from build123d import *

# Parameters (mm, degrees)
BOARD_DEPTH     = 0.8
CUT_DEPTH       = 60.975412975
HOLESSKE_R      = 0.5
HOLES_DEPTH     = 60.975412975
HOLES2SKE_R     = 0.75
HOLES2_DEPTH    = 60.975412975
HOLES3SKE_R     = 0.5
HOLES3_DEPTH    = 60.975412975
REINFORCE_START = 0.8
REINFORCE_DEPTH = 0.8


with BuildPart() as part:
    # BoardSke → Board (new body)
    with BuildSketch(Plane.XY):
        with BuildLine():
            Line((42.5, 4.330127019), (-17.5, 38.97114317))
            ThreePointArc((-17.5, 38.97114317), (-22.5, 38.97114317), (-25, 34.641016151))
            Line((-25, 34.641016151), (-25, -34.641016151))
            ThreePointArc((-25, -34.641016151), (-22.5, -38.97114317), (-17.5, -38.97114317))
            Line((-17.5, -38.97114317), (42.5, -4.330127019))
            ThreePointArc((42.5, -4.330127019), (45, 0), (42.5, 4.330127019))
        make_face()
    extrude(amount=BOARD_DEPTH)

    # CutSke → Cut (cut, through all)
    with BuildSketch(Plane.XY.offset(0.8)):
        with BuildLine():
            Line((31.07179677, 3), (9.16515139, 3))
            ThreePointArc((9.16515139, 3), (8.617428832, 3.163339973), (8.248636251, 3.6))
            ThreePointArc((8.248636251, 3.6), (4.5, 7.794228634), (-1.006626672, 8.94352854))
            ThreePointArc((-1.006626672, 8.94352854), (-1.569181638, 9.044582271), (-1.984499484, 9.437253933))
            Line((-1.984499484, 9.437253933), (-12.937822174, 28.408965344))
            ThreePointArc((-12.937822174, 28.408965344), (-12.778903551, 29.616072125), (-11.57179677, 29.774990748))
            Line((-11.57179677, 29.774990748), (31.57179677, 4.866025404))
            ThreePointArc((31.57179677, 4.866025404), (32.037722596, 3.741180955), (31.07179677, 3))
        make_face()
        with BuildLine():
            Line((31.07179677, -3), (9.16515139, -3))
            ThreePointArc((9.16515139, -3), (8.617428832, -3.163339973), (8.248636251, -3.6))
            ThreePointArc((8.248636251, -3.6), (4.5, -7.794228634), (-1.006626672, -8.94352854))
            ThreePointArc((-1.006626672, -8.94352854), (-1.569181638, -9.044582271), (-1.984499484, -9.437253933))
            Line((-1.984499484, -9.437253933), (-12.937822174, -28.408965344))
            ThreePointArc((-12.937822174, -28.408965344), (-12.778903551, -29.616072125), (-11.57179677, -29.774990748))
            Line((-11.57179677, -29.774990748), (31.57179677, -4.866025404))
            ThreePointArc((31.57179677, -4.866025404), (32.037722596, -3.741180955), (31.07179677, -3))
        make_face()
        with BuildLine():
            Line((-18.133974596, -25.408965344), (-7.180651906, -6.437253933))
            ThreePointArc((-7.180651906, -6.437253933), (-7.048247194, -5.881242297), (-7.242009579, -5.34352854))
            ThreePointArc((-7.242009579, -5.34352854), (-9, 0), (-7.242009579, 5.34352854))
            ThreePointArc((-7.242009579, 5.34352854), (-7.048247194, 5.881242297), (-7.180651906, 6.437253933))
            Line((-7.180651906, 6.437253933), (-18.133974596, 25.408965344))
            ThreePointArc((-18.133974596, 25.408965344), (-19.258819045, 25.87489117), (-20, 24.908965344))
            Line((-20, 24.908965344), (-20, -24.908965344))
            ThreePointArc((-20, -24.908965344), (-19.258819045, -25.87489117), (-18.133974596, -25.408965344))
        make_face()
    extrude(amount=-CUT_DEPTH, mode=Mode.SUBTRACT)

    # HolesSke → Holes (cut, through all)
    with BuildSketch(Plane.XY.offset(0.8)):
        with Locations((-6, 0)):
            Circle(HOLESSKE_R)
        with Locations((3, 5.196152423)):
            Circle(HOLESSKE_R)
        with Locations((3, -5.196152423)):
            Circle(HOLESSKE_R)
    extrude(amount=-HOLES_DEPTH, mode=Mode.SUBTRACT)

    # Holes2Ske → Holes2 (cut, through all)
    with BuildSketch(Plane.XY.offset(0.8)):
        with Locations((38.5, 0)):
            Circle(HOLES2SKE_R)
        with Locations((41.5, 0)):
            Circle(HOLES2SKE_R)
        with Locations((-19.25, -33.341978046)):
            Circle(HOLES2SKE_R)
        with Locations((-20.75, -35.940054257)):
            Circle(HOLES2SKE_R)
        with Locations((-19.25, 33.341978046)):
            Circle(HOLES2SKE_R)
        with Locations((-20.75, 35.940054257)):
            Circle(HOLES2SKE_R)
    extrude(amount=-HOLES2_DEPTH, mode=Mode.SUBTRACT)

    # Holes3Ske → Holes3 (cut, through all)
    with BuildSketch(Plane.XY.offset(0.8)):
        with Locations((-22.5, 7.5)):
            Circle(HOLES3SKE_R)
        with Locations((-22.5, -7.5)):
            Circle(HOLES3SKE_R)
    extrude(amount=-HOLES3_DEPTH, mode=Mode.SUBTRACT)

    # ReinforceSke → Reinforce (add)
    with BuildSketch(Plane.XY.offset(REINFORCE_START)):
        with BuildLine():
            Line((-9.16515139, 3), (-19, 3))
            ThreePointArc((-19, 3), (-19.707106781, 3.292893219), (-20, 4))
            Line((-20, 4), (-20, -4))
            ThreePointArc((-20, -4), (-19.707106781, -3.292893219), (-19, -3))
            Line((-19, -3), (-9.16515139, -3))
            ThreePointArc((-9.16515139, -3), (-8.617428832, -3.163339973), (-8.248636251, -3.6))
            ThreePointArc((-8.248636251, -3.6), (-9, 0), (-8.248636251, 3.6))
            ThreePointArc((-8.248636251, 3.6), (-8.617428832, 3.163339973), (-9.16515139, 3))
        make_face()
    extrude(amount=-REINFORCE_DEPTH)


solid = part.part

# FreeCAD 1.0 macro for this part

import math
import FreeCAD as App
import Part
import Sketcher

V = App.Vector
Q = App.Units.Quantity

doc = App.newDocument("Part")
body = doc.addObject("PartDesign::Body", "Body")

sketch1 = doc.addObject("Sketcher::SketchObject", "Sketch")
body.addObject(sketch1)
sketch1.AttachmentSupport = (doc.XY_Plane, [""])
sketch1.MapMode = "FlatFace"
sketch1.addGeometry([
    Part.LineSegment(V(42, 4, 0), V(-18, 39, 0)),
    Part.ArcOfCircle(Part.Circle(V(-20, 35, 0), V(0, 0, 1), 5), math.radians(60), math.radians(180)),
    Part.LineSegment(V(-25, 35, 0), V(-25, -35, 0)),
    Part.ArcOfCircle(Part.Circle(V(-20, -35, 0), V(0, 0, 1), 5), math.radians(180), math.radians(300)),
    Part.LineSegment(V(-18, -39, 0), V(42, -4, 0)),
    Part.ArcOfCircle(Part.Circle(V(40, 0, 0), V(0, 0, 1), 5), math.radians(-60), math.radians(60)),
], False)
sketch1.addConstraint([
    Sketcher.Constraint("Tangent", 0, 2, 1, 1),
    Sketcher.Constraint("Tangent", 1, 2, 2, 1),
    Sketcher.Constraint("Tangent", 2, 2, 3, 1),
    Sketcher.Constraint("Tangent", 3, 2, 4, 1),
    Sketcher.Constraint("Tangent", 4, 2, 5, 1),
    Sketcher.Constraint("Tangent", 5, 2, 0, 1),
    Sketcher.Constraint("Vertical", 2),
    Sketcher.Constraint("Equal", 1, 3),
    Sketcher.Constraint("Equal", 3, 5),
    Sketcher.Constraint("Symmetric", 0, 2, 3, 2, -1),
    Sketcher.Constraint("Radius", 1, Q("5 mm")),
    Sketcher.Constraint("Angle", 0, Q("150 deg")),
    Sketcher.Constraint("DistanceX", 1, 3, -1, 1, Q("20 mm")),
    Sketcher.Constraint("DistanceX", -1, 1, 5, 3, Q("40 mm")),
])
pad1 = doc.addObject("PartDesign::Pad", "Pad")
body.addObject(pad1)
pad1.Profile = sketch1
pad1.Length = 0.8

sketch2 = doc.addObject("Sketcher::SketchObject", "Sketch001")
body.addObject(sketch2)
sketch2.AttachmentSupport = (doc.XY_Plane, [""])
sketch2.MapMode = "FlatFace"
sketch2.AttachmentOffset = App.Placement(V(0, 0, 0.8), App.Rotation())
sketch2.addGeometry([
    Part.LineSegment(V(9.2, 3, 0), V(31.1, 3, 0)),
    Part.ArcOfCircle(Part.Circle(V(31.1, 4, 0), V(0, 0, 1), 1), math.radians(-90), math.radians(60)),
    Part.LineSegment(V(31.6, 4.9, 0), V(-11.6, 29.8, 0)),
    Part.ArcOfCircle(Part.Circle(V(-12.1, 28.9, 0), V(0, 0, 1), 1), math.radians(60), math.radians(210)),
    Part.LineSegment(V(-12.9, 28.4, 0), V(-2, 9.4, 0)),
    Part.ArcOfCircle(Part.Circle(V(-1.1, 9.9, 0), V(0, 0, 1), 1), math.radians(-150), math.radians(-84)),
    Part.ArcOfCircle(Part.Circle(V(0, 0, 0), V(0, 0, 1), 9), math.radians(24), math.radians(96)),
    Part.ArcOfCircle(Part.Circle(V(9.2, 4, 0), V(0, 0, 1), 1), math.radians(-156), math.radians(-90)),
    Part.LineSegment(V(31.1, -3, 0), V(9.2, -3, 0)),
    Part.ArcOfCircle(Part.Circle(V(9.2, -4, 0), V(0, 0, 1), 1), math.radians(90), math.radians(156)),
    Part.ArcOfCircle(Part.Circle(V(0, 0, 0), V(0, 0, 1), 9), math.radians(-96), math.radians(-24)),
    Part.ArcOfCircle(Part.Circle(V(-1.1, -9.9, 0), V(0, 0, 1), 1), math.radians(84), math.radians(150)),
    Part.LineSegment(V(-2, -9.4, 0), V(-12.9, -28.4, 0)),
    Part.ArcOfCircle(Part.Circle(V(-12.1, -28.9, 0), V(0, 0, 1), 1), math.radians(150), math.radians(300)),
    Part.LineSegment(V(-11.6, -29.8, 0), V(31.6, -4.9, 0)),
    Part.ArcOfCircle(Part.Circle(V(31.1, -4, 0), V(0, 0, 1), 1), math.radians(-60), math.radians(90)),
    Part.LineSegment(V(-18.1, -25.4, 0), V(-7.2, -6.4, 0)),
    Part.ArcOfCircle(Part.Circle(V(-8, -5.9, 0), V(0, 0, 1), 1), math.radians(-30), math.radians(36)),
    Part.ArcOfCircle(Part.Circle(V(0, 0, 0), V(0, 0, 1), 9), math.radians(144), math.radians(216)),
    Part.ArcOfCircle(Part.Circle(V(-8, 5.9, 0), V(0, 0, 1), 1), math.radians(-36), math.radians(30)),
    Part.LineSegment(V(-7.2, 6.4, 0), V(-18.1, 25.4, 0)),
    Part.ArcOfCircle(Part.Circle(V(-19, 24.9, 0), V(0, 0, 1), 1), math.radians(30), math.radians(180)),
    Part.LineSegment(V(-20, 24.9, 0), V(-20, -24.9, 0)),
    Part.ArcOfCircle(Part.Circle(V(-19, -24.9, 0), V(0, 0, 1), 1), math.radians(180), math.radians(330)),
], False)
sketch2.addConstraint([
    Sketcher.Constraint("Tangent", 0, 2, 1, 1),
    Sketcher.Constraint("Tangent", 1, 2, 2, 1),
    Sketcher.Constraint("Tangent", 2, 2, 3, 1),
    Sketcher.Constraint("Tangent", 3, 2, 4, 1),
    Sketcher.Constraint("Tangent", 4, 2, 5, 1),
    Sketcher.Constraint("Tangent", 5, 2, 6, 2),
    Sketcher.Constraint("Tangent", 6, 1, 7, 1),
    Sketcher.Constraint("Tangent", 7, 2, 0, 1),
    Sketcher.Constraint("Tangent", 8, 2, 9, 1),
    Sketcher.Constraint("Tangent", 9, 2, 10, 2),
    Sketcher.Constraint("Tangent", 10, 1, 11, 1),
    Sketcher.Constraint("Tangent", 11, 2, 12, 1),
    Sketcher.Constraint("Tangent", 12, 2, 13, 1),
    Sketcher.Constraint("Tangent", 13, 2, 14, 1),
    Sketcher.Constraint("Tangent", 14, 2, 15, 1),
    Sketcher.Constraint("Tangent", 15, 2, 8, 1),
    Sketcher.Constraint("Tangent", 16, 2, 17, 1),
    Sketcher.Constraint("Tangent", 17, 2, 18, 2),
    Sketcher.Constraint("Tangent", 18, 1, 19, 1),
    Sketcher.Constraint("Tangent", 19, 2, 20, 1),
    Sketcher.Constraint("Tangent", 20, 2, 21, 1),
    Sketcher.Constraint("Tangent", 21, 2, 22, 1),
    Sketcher.Constraint("Tangent", 22, 2, 23, 1),
    Sketcher.Constraint("Tangent", 23, 2, 16, 1),
    Sketcher.Constraint("Horizontal", 0),
    Sketcher.Constraint("Horizontal", 8),
    Sketcher.Constraint("Vertical", 22),
    Sketcher.Constraint("Coincident", 6, 3, -1, 1),
    Sketcher.Constraint("Coincident", 10, 3, -1, 1),
    Sketcher.Constraint("Coincident", 18, 3, -1, 1),
    Sketcher.Constraint("Equal", 1, 3),
    Sketcher.Constraint("Equal", 3, 5),
    Sketcher.Constraint("Equal", 5, 7),
    Sketcher.Constraint("Equal", 7, 9),
    Sketcher.Constraint("Equal", 6, 10),
    Sketcher.Constraint("Equal", 9, 11),
    Sketcher.Constraint("Equal", 11, 13),
    Sketcher.Constraint("Equal", 13, 15),
    Sketcher.Constraint("Equal", 15, 17),
    Sketcher.Constraint("Equal", 10, 18),
    Sketcher.Constraint("Equal", 17, 19),
    Sketcher.Constraint("Equal", 19, 21),
    Sketcher.Constraint("Equal", 21, 23),
    Sketcher.Constraint("Symmetric", 3, 3, 13, 3, -1),
    Sketcher.Constraint("Symmetric", 1, 3, 15, 3, -1),
    Sketcher.Constraint("Symmetric", 16, 2, 19, 2, -1),
    Sketcher.Constraint("Perpendicular", 2, 12),
    Sketcher.Constraint("Perpendicular", 4, 14),
    Sketcher.Constraint("Parallel", 12, 16),
    Sketcher.Constraint("Equal", 12, 16),
    Sketcher.Constraint("Radius", 1, Q("1 mm")),
    Sketcher.Constraint("Radius", 6, Q("9 mm")),
    Sketcher.Constraint("Angle", 2, Q("150 deg")),
    Sketcher.Constraint("DistanceY", -1, 1, 1, 3, Q("4 mm")),
    Sketcher.Constraint("DistanceX", 21, 3, -1, 1, Q("19 mm")),
    Sketcher.Constraint("DistanceY", 11, 3, 17, 3, Q("4 mm")),
    Sketcher.Constraint("DistanceY", 22, 2, 22, 1, Q("49.817931 mm")),
])
pocket1 = doc.addObject("PartDesign::Pocket", "Pocket")
body.addObject(pocket1)
pocket1.Profile = sketch2
pocket1.Type = "ThroughAll"

sketch3 = doc.addObject("Sketcher::SketchObject", "Sketch002")
body.addObject(sketch3)
sketch3.AttachmentSupport = (doc.XY_Plane, [""])
sketch3.MapMode = "FlatFace"
sketch3.AttachmentOffset = App.Placement(V(0, 0, 0.8), App.Rotation())
sketch3.addGeometry([
    Part.Circle(V(-6, 0, 0), V(0, 0, 1), 0.5),
    Part.Circle(V(3, 5.2, 0), V(0, 0, 1), 0.5),
    Part.Circle(V(3, -5.2, 0), V(0, 0, 1), 0.5),
], False)
sketch3.addConstraint([
    Sketcher.Constraint("Equal", 0, 1),
    Sketcher.Constraint("Equal", 1, 2),
    Sketcher.Constraint("Symmetric", 1, 3, 2, 3, -1),
    Sketcher.Constraint("PointOnObject", 0, 3, -1),
    Sketcher.Constraint("Diameter", 0, Q("1 mm")),
    Sketcher.Constraint("DistanceX", 0, 3, -1, 1, Q("6 mm")),
    Sketcher.Constraint("DistanceX", -1, 1, 1, 3, Q("3 mm")),
    Sketcher.Constraint("DistanceY", -1, 1, 1, 3, Q("5.196152 mm")),
])
pocket2 = doc.addObject("PartDesign::Pocket", "Pocket001")
body.addObject(pocket2)
pocket2.Profile = sketch3
pocket2.Type = "ThroughAll"

sketch4 = doc.addObject("Sketcher::SketchObject", "Sketch003")
body.addObject(sketch4)
sketch4.AttachmentSupport = (doc.XY_Plane, [""])
sketch4.MapMode = "FlatFace"
sketch4.AttachmentOffset = App.Placement(V(0, 0, 0.8), App.Rotation())
sketch4.addGeometry([
    Part.Circle(V(38.5, 0, 0), V(0, 0, 1), 0.8),
    Part.Circle(V(41.5, 0, 0), V(0, 0, 1), 0.8),
    Part.Circle(V(-19.2, -33.3, 0), V(0, 0, 1), 0.8),
    Part.Circle(V(-20.8, -35.9, 0), V(0, 0, 1), 0.8),
    Part.Circle(V(-19.2, 33.3, 0), V(0, 0, 1), 0.8),
    Part.Circle(V(-20.8, 35.9, 0), V(0, 0, 1), 0.8),
], False)
sketch4.addConstraint([
    Sketcher.Constraint("Equal", 0, 1),
    Sketcher.Constraint("Equal", 1, 2),
    Sketcher.Constraint("Equal", 2, 3),
    Sketcher.Constraint("Equal", 3, 4),
    Sketcher.Constraint("Equal", 4, 5),
    Sketcher.Constraint("Symmetric", 2, 3, 4, 3, -1),
    Sketcher.Constraint("Symmetric", 3, 3, 5, 3, -1),
    Sketcher.Constraint("PointOnObject", 0, 3, -1),
    Sketcher.Constraint("PointOnObject", 1, 3, -1),
    Sketcher.Constraint("Diameter", 0, Q("1.5 mm")),
    Sketcher.Constraint("DistanceX", 0, 3, 1, 3, Q("3 mm")),
    Sketcher.Constraint("DistanceX", -1, 1, 0, 3, Q("38.5 mm")),
    Sketcher.Constraint("DistanceX", 3, 3, 2, 3, Q("1.5 mm")),
    Sketcher.Constraint("DistanceX", 2, 3, -1, 1, Q("19.25 mm")),
    Sketcher.Constraint("DistanceY", 2, 3, -1, 1, Q("33.341978 mm")),
    Sketcher.Constraint("DistanceY", 3, 3, 5, 3, Q("71.880109 mm")),
])
pocket3 = doc.addObject("PartDesign::Pocket", "Pocket002")
body.addObject(pocket3)
pocket3.Profile = sketch4
pocket3.Type = "ThroughAll"

sketch5 = doc.addObject("Sketcher::SketchObject", "Sketch004")
body.addObject(sketch5)
sketch5.AttachmentSupport = (doc.XY_Plane, [""])
sketch5.MapMode = "FlatFace"
sketch5.AttachmentOffset = App.Placement(V(0, 0, 0.8), App.Rotation())
sketch5.addGeometry([
    Part.Circle(V(-22.5, 7.5, 0), V(0, 0, 1), 0.5),
    Part.Circle(V(-22.5, -7.5, 0), V(0, 0, 1), 0.5),
], False)
sketch5.addConstraint([
    Sketcher.Constraint("Equal", 0, 1),
    Sketcher.Constraint("Symmetric", 0, 3, 1, 3, -1),
    Sketcher.Constraint("Diameter", 0, Q("1 mm")),
    Sketcher.Constraint("DistanceY", 1, 3, 0, 3, Q("15 mm")),
    Sketcher.Constraint("DistanceX", 0, 3, -1, 1, Q("22.5 mm")),
])
pocket4 = doc.addObject("PartDesign::Pocket", "Pocket003")
body.addObject(pocket4)
pocket4.Profile = sketch5
pocket4.Type = "ThroughAll"

sketch6 = doc.addObject("Sketcher::SketchObject", "Sketch005")
body.addObject(sketch6)
sketch6.AttachmentSupport = (doc.XY_Plane, [""])
sketch6.MapMode = "FlatFace"
sketch6.AttachmentOffset = App.Placement(V(0, 0, 0.8), App.Rotation())
sketch6.addGeometry([
    Part.LineSegment(V(-9.2, 3, 0), V(-19, 3, 0)),
    Part.ArcOfCircle(Part.Circle(V(-19, 4, 0), V(0, 0, 1), 1), math.radians(-180), math.radians(-90)),
    Part.LineSegment(V(-20, 4, 0), V(-20, -4, 0)),
    Part.ArcOfCircle(Part.Circle(V(-19, -4, 0), V(0, 0, 1), 1), math.radians(90), math.radians(180)),
    Part.LineSegment(V(-19, -3, 0), V(-9.2, -3, 0)),
    Part.ArcOfCircle(Part.Circle(V(-9.2, -4, 0), V(0, 0, 1), 1), math.radians(24), math.radians(90)),
    Part.ArcOfCircle(Part.Circle(V(0, 0, 0), V(0, 0, 1), 9), math.radians(156), math.radians(204)),
    Part.ArcOfCircle(Part.Circle(V(-9.2, 4, 0), V(0, 0, 1), 1), math.radians(-90), math.radians(-24)),
], False)
sketch6.addConstraint([
    Sketcher.Constraint("Tangent", 0, 2, 1, 2),
    Sketcher.Constraint("Tangent", 1, 1, 2, 1),
    Sketcher.Constraint("Tangent", 2, 2, 3, 2),
    Sketcher.Constraint("Tangent", 3, 1, 4, 1),
    Sketcher.Constraint("Tangent", 4, 2, 5, 2),
    Sketcher.Constraint("Tangent", 5, 1, 6, 2),
    Sketcher.Constraint("Tangent", 6, 1, 7, 2),
    Sketcher.Constraint("Tangent", 7, 1, 0, 1),
    Sketcher.Constraint("Horizontal", 0),
    Sketcher.Constraint("Vertical", 2),
    Sketcher.Constraint("Horizontal", 4),
    Sketcher.Constraint("Coincident", 6, 3, -1, 1),
    Sketcher.Constraint("Equal", 1, 3),
    Sketcher.Constraint("Equal", 3, 5),
    Sketcher.Constraint("Equal", 5, 7),
    Sketcher.Constraint("Vertical", 5, 3, 7, 3),
    Sketcher.Constraint("Radius", 1, Q("1 mm")),
    Sketcher.Constraint("Radius", 6, Q("9 mm")),
    Sketcher.Constraint("DistanceY", 2, 2, 2, 1, Q("8 mm")),
    Sketcher.Constraint("DistanceX", 1, 3, -1, 1, Q("19 mm")),
])
pad2 = doc.addObject("PartDesign::Pad", "Pad001")
body.addObject(pad2)
pad2.Profile = sketch6
pad2.Length = 0.8
pad2.Reversed = True

doc.recompute()
